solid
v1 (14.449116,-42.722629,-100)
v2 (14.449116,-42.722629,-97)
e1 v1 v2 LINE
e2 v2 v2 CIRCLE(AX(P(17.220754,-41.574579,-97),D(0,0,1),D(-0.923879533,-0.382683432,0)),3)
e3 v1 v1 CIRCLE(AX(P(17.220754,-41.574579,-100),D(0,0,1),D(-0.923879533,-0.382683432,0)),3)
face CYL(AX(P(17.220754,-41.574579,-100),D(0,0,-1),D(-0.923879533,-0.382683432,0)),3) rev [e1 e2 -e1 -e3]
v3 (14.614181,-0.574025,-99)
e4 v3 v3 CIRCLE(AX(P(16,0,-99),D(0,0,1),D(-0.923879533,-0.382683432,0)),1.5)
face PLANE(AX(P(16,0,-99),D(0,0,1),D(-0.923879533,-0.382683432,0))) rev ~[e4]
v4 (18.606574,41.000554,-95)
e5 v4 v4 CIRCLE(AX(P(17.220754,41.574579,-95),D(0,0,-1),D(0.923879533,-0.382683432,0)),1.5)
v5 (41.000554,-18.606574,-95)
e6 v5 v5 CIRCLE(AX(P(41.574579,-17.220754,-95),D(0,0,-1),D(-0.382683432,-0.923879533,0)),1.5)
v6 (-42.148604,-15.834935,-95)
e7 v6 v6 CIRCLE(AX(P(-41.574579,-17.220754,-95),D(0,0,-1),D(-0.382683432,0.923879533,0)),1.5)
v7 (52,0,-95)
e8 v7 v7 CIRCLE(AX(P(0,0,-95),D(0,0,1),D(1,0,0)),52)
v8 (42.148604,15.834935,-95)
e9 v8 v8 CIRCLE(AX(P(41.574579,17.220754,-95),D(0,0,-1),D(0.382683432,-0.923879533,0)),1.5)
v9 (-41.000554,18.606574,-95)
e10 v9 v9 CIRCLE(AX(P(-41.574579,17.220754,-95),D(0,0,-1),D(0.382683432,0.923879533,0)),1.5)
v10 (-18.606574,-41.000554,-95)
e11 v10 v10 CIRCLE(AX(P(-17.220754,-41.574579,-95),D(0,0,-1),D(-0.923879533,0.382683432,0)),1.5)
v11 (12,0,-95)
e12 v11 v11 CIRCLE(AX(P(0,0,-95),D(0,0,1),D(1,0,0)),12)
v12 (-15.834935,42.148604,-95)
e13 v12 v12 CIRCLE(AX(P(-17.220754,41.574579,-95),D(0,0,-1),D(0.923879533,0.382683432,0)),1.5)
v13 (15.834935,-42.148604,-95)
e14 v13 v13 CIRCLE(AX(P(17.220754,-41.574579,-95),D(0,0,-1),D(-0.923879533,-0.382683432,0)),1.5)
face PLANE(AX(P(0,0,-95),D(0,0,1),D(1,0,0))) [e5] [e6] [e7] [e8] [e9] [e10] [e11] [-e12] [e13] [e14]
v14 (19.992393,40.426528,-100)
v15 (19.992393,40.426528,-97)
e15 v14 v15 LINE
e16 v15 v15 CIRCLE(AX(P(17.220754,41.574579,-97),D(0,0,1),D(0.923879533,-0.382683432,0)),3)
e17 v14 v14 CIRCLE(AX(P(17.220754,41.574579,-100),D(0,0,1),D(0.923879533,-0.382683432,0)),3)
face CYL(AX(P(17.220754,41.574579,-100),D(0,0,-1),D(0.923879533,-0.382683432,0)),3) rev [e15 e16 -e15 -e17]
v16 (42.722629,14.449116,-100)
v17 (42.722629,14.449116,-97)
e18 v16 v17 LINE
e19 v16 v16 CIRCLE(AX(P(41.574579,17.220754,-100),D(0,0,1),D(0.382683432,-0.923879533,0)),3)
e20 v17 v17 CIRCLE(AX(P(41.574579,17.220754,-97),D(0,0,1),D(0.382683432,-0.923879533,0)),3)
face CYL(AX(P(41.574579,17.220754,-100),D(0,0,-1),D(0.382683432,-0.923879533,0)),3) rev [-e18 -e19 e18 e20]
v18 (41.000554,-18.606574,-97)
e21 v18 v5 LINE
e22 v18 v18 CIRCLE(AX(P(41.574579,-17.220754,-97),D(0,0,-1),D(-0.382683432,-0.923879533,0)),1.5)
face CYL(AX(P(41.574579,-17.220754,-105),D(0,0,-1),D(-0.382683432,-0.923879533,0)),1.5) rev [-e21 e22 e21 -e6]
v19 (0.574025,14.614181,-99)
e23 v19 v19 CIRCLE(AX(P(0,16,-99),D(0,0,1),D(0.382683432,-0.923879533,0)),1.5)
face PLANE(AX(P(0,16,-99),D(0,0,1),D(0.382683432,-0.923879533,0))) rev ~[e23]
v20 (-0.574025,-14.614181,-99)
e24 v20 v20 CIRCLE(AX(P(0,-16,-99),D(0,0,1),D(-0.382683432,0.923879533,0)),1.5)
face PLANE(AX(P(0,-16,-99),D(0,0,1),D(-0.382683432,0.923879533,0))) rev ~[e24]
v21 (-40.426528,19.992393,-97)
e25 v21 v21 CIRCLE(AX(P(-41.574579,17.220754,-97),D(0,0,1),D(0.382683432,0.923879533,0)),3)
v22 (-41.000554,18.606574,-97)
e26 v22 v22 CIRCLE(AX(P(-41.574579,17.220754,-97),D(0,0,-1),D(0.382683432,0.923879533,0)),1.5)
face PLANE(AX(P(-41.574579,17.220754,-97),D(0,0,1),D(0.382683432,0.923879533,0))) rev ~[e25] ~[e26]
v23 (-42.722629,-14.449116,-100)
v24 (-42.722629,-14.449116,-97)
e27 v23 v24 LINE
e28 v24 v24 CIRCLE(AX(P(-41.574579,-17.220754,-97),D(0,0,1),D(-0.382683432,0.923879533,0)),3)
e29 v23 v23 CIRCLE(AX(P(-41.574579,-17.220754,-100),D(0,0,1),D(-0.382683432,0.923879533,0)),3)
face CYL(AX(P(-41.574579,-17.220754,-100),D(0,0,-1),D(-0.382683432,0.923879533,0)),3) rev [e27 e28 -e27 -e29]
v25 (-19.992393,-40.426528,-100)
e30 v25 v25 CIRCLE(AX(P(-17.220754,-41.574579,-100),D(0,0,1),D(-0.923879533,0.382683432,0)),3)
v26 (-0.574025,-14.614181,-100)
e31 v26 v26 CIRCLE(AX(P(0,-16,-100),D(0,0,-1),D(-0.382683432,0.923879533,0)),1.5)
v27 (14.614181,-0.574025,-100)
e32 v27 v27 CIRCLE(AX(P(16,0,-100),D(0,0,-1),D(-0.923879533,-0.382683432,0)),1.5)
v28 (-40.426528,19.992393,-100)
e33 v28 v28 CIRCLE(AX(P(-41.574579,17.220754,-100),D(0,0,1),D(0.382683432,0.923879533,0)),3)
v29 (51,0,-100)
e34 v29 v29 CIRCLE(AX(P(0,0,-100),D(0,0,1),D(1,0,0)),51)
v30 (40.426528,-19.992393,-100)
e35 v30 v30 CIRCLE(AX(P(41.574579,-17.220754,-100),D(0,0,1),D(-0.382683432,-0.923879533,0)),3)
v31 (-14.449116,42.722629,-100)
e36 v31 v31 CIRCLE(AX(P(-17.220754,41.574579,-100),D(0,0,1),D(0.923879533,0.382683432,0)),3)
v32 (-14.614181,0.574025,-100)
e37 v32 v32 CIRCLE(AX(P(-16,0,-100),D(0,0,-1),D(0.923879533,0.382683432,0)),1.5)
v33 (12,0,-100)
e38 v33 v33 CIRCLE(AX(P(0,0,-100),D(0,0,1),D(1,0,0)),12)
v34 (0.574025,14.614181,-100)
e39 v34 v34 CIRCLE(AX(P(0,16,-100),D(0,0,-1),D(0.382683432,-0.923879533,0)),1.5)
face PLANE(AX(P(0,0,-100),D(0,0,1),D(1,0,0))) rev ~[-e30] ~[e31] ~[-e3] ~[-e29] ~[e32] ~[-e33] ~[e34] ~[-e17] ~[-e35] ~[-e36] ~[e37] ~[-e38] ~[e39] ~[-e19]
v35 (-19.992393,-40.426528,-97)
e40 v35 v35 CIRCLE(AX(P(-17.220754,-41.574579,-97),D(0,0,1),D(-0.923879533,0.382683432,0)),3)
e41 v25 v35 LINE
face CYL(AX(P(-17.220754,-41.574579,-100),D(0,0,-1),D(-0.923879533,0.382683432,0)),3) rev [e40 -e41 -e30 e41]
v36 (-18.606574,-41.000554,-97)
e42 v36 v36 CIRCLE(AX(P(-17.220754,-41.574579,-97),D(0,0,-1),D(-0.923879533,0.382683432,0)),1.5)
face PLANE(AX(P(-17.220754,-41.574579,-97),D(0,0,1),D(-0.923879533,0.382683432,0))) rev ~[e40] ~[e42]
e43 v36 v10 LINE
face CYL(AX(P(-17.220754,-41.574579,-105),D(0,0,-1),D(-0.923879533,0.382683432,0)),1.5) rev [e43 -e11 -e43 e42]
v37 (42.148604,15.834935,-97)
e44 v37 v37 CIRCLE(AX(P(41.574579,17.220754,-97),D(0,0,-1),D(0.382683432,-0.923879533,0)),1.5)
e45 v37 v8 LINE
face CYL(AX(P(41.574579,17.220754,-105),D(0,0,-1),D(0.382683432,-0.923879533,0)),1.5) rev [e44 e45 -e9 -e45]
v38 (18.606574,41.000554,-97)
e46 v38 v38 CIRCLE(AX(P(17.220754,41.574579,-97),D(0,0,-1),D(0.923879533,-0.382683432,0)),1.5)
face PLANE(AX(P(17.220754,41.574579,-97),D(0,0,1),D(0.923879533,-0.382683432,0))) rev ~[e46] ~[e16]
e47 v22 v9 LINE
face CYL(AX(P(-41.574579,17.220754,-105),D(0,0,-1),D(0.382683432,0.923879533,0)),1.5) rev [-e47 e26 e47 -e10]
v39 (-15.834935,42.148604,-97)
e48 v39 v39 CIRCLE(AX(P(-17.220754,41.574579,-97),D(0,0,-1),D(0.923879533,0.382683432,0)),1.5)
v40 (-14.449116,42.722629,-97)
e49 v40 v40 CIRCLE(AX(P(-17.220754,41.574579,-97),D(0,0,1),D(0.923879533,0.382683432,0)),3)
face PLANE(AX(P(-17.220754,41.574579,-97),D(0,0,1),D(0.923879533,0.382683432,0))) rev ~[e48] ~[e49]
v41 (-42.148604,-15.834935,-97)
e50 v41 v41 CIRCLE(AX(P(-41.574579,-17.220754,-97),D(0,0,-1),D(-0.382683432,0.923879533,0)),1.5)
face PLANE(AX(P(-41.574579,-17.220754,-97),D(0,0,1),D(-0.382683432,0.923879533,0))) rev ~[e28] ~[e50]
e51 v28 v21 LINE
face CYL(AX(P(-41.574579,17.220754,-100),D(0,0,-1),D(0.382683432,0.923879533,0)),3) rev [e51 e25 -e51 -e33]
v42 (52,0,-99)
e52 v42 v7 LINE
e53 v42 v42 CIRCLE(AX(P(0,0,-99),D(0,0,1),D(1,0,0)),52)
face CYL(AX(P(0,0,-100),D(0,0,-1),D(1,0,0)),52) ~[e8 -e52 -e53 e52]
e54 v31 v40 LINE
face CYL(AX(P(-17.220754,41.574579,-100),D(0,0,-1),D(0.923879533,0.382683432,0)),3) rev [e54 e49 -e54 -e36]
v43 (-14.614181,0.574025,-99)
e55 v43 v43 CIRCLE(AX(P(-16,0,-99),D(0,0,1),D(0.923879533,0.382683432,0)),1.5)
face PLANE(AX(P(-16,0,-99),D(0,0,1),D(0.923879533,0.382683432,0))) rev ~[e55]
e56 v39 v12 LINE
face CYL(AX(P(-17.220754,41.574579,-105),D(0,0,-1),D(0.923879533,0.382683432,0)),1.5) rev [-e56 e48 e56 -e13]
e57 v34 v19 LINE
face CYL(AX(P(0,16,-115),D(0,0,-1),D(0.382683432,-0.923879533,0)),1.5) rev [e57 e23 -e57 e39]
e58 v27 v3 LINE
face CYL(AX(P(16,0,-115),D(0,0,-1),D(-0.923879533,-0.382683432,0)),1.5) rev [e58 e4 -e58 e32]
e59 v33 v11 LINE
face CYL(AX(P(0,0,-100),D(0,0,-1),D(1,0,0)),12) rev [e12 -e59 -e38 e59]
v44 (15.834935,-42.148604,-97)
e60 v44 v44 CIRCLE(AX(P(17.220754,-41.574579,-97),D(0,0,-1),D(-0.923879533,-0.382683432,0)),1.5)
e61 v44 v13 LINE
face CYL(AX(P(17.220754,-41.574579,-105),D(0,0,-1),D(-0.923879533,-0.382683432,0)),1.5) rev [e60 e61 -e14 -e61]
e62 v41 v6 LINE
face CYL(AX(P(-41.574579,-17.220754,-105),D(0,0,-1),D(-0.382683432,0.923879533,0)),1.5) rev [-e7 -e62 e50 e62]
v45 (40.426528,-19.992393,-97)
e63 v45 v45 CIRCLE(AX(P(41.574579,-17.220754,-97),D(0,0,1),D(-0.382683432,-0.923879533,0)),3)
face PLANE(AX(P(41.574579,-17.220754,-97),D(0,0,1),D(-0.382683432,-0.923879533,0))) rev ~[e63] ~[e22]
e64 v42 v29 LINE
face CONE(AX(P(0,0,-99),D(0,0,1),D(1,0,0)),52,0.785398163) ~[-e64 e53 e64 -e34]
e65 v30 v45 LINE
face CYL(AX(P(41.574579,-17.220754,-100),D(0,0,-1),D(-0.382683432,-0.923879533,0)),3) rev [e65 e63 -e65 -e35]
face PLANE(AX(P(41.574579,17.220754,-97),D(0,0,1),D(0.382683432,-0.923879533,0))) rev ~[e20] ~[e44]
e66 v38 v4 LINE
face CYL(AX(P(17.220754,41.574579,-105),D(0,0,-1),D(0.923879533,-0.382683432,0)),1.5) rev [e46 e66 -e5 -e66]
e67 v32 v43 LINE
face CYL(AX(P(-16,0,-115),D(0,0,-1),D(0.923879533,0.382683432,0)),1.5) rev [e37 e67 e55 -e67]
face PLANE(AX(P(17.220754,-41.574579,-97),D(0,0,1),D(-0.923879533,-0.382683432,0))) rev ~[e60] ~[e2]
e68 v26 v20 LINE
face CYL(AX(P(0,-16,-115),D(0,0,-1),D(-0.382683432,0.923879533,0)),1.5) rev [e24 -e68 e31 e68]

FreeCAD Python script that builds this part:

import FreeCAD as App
import Part
import Sketcher
from FreeCAD import Vector
Q = App.Units.Quantity


def edges_at(feature, points):
    """Names of the edges that pass closest to the given points."""
    edges = feature.Shape.Edges
    near = lambda p: min(range(len(edges)), key=lambda i: edges[i].distToShape(Part.Vertex(*p))[0])
    return sorted({f"Edge{near(p) + 1}" for p in points})

doc = App.newDocument("Part")
body = doc.addObject("PartDesign::Body", "Body")

# Sketch on XY plane
sketch1 = doc.addObject("Sketcher::SketchObject", "Sketch")
body.addObject(sketch1)
sketch1.AttachmentSupport = (doc.XY_Plane, [""])
sketch1.MapMode = "FlatFace"
sketch1.addGeometry(Part.Circle(Vector(0, 0, 0), Vector(0, 0, 1), 3), False)
sketch1.addConstraint([
    Sketcher.Constraint("Coincident", 0, 3, -1, 1),
    Sketcher.Constraint("Diameter", 0, Q("6 mm")),
])
pad1 = doc.addObject("PartDesign::Pad", "Pad")
body.addObject(pad1)
pad1.Profile = sketch1
pad1.Length = 3
body2 = doc.addObject("PartDesign::Body", "Body001")
doc.recompute()

body.Placement = App.Placement(Vector(-31.819805, 31.819805, -18), App.Rotation(Vector(0, 0, 1), 45))
boolean = doc.addObject("PartDesign::Boolean", "Boolean")
body2.addObject(boolean)
boolean.Type = "Fuse"
boolean.addObjects([body])
body3 = doc.addObject("PartDesign::Body", "Body002")

# Sketch on XY plane
sketch2 = doc.addObject("Sketcher::SketchObject", "Sketch001")
body3.addObject(sketch2)
sketch2.AttachmentSupport = (doc.getObject("XY_Plane002"), [""])
sketch2.MapMode = "FlatFace"
sketch2.AttachmentOffset = App.Placement(Vector(0, 0, -18), App.Rotation())
sketch2.addGeometry(Part.Circle(Vector(-45, 0, 0), Vector(0, 0, 1), 3), False)
sketch2.addConstraint([
    Sketcher.Constraint("PointOnObject", 0, 3, -1),
    Sketcher.Constraint("Diameter", 0, Q("6 mm")),
    Sketcher.Constraint("DistanceX", 0, 3, -1, 1, Q("45 mm")),
])
pad2 = doc.addObject("PartDesign::Pad", "Pad001")
body3.addObject(pad2)
pad2.Profile = sketch2
pad2.Length = 3
body4 = doc.addObject("PartDesign::Body", "Body003")

# Sketch on XY plane
sketch3 = doc.addObject("Sketcher::SketchObject", "Sketch002")
body4.addObject(sketch3)
sketch3.AttachmentSupport = (doc.getObject("XY_Plane003"), [""])
sketch3.MapMode = "FlatFace"
sketch3.addGeometry(Part.Circle(Vector(0, 0, 0), Vector(0, 0, 1), 3), False)
sketch3.addConstraint([
    Sketcher.Constraint("Coincident", 0, 3, -1, 1),
    Sketcher.Constraint("Diameter", 0, Q("6 mm")),
])
pad3 = doc.addObject("PartDesign::Pad", "Pad002")
body4.addObject(pad3)
pad3.Profile = sketch3
pad3.Length = 3
body5 = doc.addObject("PartDesign::Body", "Body004")
doc.recompute()

body4.Placement = App.Placement(Vector(-31.819805, -31.819805, -18), App.Rotation(Vector(0, 0, 1), 135))
boolean2 = doc.addObject("PartDesign::Boolean", "Boolean001")
body5.addObject(boolean2)
boolean2.Type = "Fuse"
boolean2.addObjects([body4])
body6 = doc.addObject("PartDesign::Body", "Body005")

# Sketch on XY plane
sketch4 = doc.addObject("Sketcher::SketchObject", "Sketch003")
body6.addObject(sketch4)
sketch4.AttachmentSupport = (doc.getObject("XY_Plane005"), [""])
sketch4.MapMode = "FlatFace"
sketch4.AttachmentOffset = App.Placement(Vector(0, 0, -18), App.Rotation())
sketch4.addGeometry(Part.Circle(Vector(0, -45, 0), Vector(0, 0, 1), 3), False)
sketch4.addConstraint([
    Sketcher.Constraint("PointOnObject", 0, 3, -2),
    Sketcher.Constraint("Diameter", 0, Q("6 mm")),
    Sketcher.Constraint("DistanceY", 0, 3, -1, 1, Q("45 mm")),
])
pad4 = doc.addObject("PartDesign::Pad", "Pad003")
body6.addObject(pad4)
pad4.Profile = sketch4
pad4.Length = 3
body7 = doc.addObject("PartDesign::Body", "Body006")

# Sketch on XY plane
sketch5 = doc.addObject("Sketcher::SketchObject", "Sketch004")
body7.addObject(sketch5)
sketch5.AttachmentSupport = (doc.getObject("XY_Plane006"), [""])
sketch5.MapMode = "FlatFace"
sketch5.addGeometry(Part.Circle(Vector(0, 0, 0), Vector(0, 0, 1), 3), False)
sketch5.addConstraint([
    Sketcher.Constraint("Coincident", 0, 3, -1, 1),
    Sketcher.Constraint("Diameter", 0, Q("6 mm")),
])
pad5 = doc.addObject("PartDesign::Pad", "Pad004")
body7.addObject(pad5)
pad5.Profile = sketch5
pad5.Length = 3
body8 = doc.addObject("PartDesign::Body", "Body007")
doc.recompute()

body7.Placement = App.Placement(Vector(31.819805, -31.819805, -18), App.Rotation(Vector(0, 0, 1), 225))
boolean3 = doc.addObject("PartDesign::Boolean", "Boolean002")
body8.addObject(boolean3)
boolean3.Type = "Fuse"
boolean3.addObjects([body7])
body9 = doc.addObject("PartDesign::Body", "Body008")

# Sketch on XY plane
sketch6 = doc.addObject("Sketcher::SketchObject", "Sketch005")
body9.addObject(sketch6)
sketch6.AttachmentSupport = (doc.getObject("XY_Plane008"), [""])
sketch6.MapMode = "FlatFace"
sketch6.AttachmentOffset = App.Placement(Vector(0, 0, -18), App.Rotation())
sketch6.addGeometry(Part.Circle(Vector(45, 0, 0), Vector(0, 0, 1), 3), False)
sketch6.addConstraint([
    Sketcher.Constraint("PointOnObject", 0, 3, -1),
    Sketcher.Constraint("Diameter", 0, Q("6 mm")),
    Sketcher.Constraint("DistanceX", -1, 1, 0, 3, Q("45 mm")),
])
pad6 = doc.addObject("PartDesign::Pad", "Pad005")
body9.addObject(pad6)
pad6.Profile = sketch6
pad6.Length = 3
body10 = doc.addObject("PartDesign::Body", "Body009")

# Sketch on XY plane
sketch7 = doc.addObject("Sketcher::SketchObject", "Sketch006")
body10.addObject(sketch7)
sketch7.AttachmentSupport = (doc.getObject("XY_Plane009"), [""])
sketch7.MapMode = "FlatFace"
sketch7.addGeometry(Part.Circle(Vector(0, 0, 0), Vector(0, 0, 1), 3), False)
sketch7.addConstraint([
    Sketcher.Constraint("Coincident", 0, 3, -1, 1),
    Sketcher.Constraint("Diameter", 0, Q("6 mm")),
])
pad7 = doc.addObject("PartDesign::Pad", "Pad006")
body10.addObject(pad7)
pad7.Profile = sketch7
pad7.Length = 3
body11 = doc.addObject("PartDesign::Body", "Body010")
doc.recompute()

body10.Placement = App.Placement(Vector(31.819805, 31.819805, -18), App.Rotation(Vector(0, 0, -1), 45))
boolean4 = doc.addObject("PartDesign::Boolean", "Boolean003")
body11.addObject(boolean4)
boolean4.Type = "Fuse"
boolean4.addObjects([body10])
body12 = doc.addObject("PartDesign::Body", "Body011")
body12.AllowCompound = True

# Sketch on XY plane
sketch8 = doc.addObject("Sketcher::SketchObject", "Sketch007")
body12.addObject(sketch8)
sketch8.AttachmentSupport = (doc.getObject("XY_Plane011"), [""])
sketch8.MapMode = "FlatFace"
sketch8.AttachmentOffset = App.Placement(Vector(0, 0, -18), App.Rotation())
sketch8.addGeometry(Part.Circle(Vector(0, 45, 0), Vector(0, 0, 1), 3), False)
sketch8.addConstraint([
    Sketcher.Constraint("PointOnObject", 0, 3, -2),
    Sketcher.Constraint("Diameter", 0, Q("6 mm")),
    Sketcher.Constraint("DistanceY", -1, 1, 0, 3, Q("45 mm")),
])
pad8 = doc.addObject("PartDesign::Pad", "Pad007")
body12.addObject(pad8)
pad8.Profile = sketch8
pad8.Length = 3
doc.recompute()

boolean5 = doc.addObject("PartDesign::Boolean", "Boolean004")
body12.addObject(boolean5)
boolean5.Type = "Fuse"
boolean5.addObjects([body2])
doc.recompute()

boolean6 = doc.addObject("PartDesign::Boolean", "Boolean005")
body12.addObject(boolean6)
boolean6.Type = "Fuse"
boolean6.addObjects([body3])
doc.recompute()

boolean7 = doc.addObject("PartDesign::Boolean", "Boolean006")
body12.addObject(boolean7)
boolean7.Type = "Fuse"
boolean7.addObjects([body5])
doc.recompute()

boolean8 = doc.addObject("PartDesign::Boolean", "Boolean007")
body12.addObject(boolean8)
boolean8.Type = "Fuse"
boolean8.addObjects([body6])
doc.recompute()

boolean9 = doc.addObject("PartDesign::Boolean", "Boolean008")
body12.addObject(boolean9)
boolean9.Type = "Fuse"
boolean9.addObjects([body8])
doc.recompute()

boolean10 = doc.addObject("PartDesign::Boolean", "Boolean009")
body12.addObject(boolean10)
boolean10.Type = "Fuse"
boolean10.addObjects([body9])
doc.recompute()

boolean11 = doc.addObject("PartDesign::Boolean", "Boolean010")
body12.addObject(boolean11)
boolean11.Type = "Fuse"
boolean11.addObjects([body11])
body13 = doc.addObject("PartDesign::Body", "Body012")
body13.AllowCompound = True
doc.recompute()

body12.Placement = App.Placement(Vector(0, 0, -82), App.Rotation(Vector(0, 0, 1), 22.5))
boolean12 = doc.addObject("PartDesign::Boolean", "Boolean011")
body13.addObject(boolean12)
boolean12.Type = "Fuse"
boolean12.addObjects([body12])
body14 = doc.addObject("PartDesign::Body", "Body013")

# Sketch on XY plane
sketch9 = doc.addObject("Sketcher::SketchObject", "Sketch008")
body14.addObject(sketch9)
sketch9.AttachmentSupport = (doc.getObject("XY_Plane013"), [""])
sketch9.MapMode = "FlatFace"
sketch9.addGeometry(Part.Circle(Vector(0, 0, 0), Vector(0, 0, 1), 1.5), False)
sketch9.addConstraint([
    Sketcher.Constraint("Coincident", 0, 3, -1, 1),
    Sketcher.Constraint("Diameter", 0, Q("3 mm")),
])
pad9 = doc.addObject("PartDesign::Pad", "Pad008")
body14.addObject(pad9)
pad9.Profile = sketch9
pad9.Length = 20
body15 = doc.addObject("PartDesign::Body", "Body014")
doc.recompute()

body14.Placement = App.Placement(Vector(-31.819805, 31.819805, -18), App.Rotation(Vector(0, 0, 1), 45))
boolean13 = doc.addObject("PartDesign::Boolean", "Boolean012")
body15.addObject(boolean13)
boolean13.Type = "Fuse"
boolean13.addObjects([body14])
body16 = doc.addObject("PartDesign::Body", "Body015")

# Sketch on XY plane
sketch10 = doc.addObject("Sketcher::SketchObject", "Sketch009")
body16.addObject(sketch10)
sketch10.AttachmentSupport = (doc.getObject("XY_Plane015"), [""])
sketch10.MapMode = "FlatFace"
sketch10.AttachmentOffset = App.Placement(Vector(0, 0, -18), App.Rotation())
sketch10.addGeometry(Part.Circle(Vector(-45, 0, 0), Vector(0, 0, 1), 1.5), False)
sketch10.addConstraint([
    Sketcher.Constraint("PointOnObject", 0, 3, -1),
    Sketcher.Constraint("Diameter", 0, Q("3 mm")),
    Sketcher.Constraint("DistanceX", 0, 3, -1, 1, Q("45 mm")),
])
pad10 = doc.addObject("PartDesign::Pad", "Pad009")
body16.addObject(pad10)
pad10.Profile = sketch10
pad10.Length = 20
body17 = doc.addObject("PartDesign::Body", "Body016")

# Sketch on XY plane
sketch11 = doc.addObject("Sketcher::SketchObject", "Sketch010")
body17.addObject(sketch11)
sketch11.AttachmentSupport = (doc.getObject("XY_Plane016"), [""])
sketch11.MapMode = "FlatFace"
sketch11.addGeometry(Part.Circle(Vector(0, 0, 0), Vector(0, 0, 1), 1.5), False)
sketch11.addConstraint([
    Sketcher.Constraint("Coincident", 0, 3, -1, 1),
    Sketcher.Constraint("Diameter", 0, Q("3 mm")),
])
pad11 = doc.addObject("PartDesign::Pad", "Pad010")
body17.addObject(pad11)
pad11.Profile = sketch11
pad11.Length = 20
body18 = doc.addObject("PartDesign::Body", "Body017")
doc.recompute()

body17.Placement = App.Placement(Vector(-31.819805, -31.819805, -18), App.Rotation(Vector(0, 0, 1), 135))
boolean14 = doc.addObject("PartDesign::Boolean", "Boolean013")
body18.addObject(boolean14)
boolean14.Type = "Fuse"
boolean14.addObjects([body17])
body19 = doc.addObject("PartDesign::Body", "Body018")

# Sketch on XY plane
sketch12 = doc.addObject("Sketcher::SketchObject", "Sketch011")
body19.addObject(sketch12)
sketch12.AttachmentSupport = (doc.getObject("XY_Plane018"), [""])
sketch12.MapMode = "FlatFace"
sketch12.AttachmentOffset = App.Placement(Vector(0, 0, -18), App.Rotation())
sketch12.addGeometry(Part.Circle(Vector(0, -45, 0), Vector(0, 0, 1), 1.5), False)
sketch12.addConstraint([
    Sketcher.Constraint("PointOnObject", 0, 3, -2),
    Sketcher.Constraint("Diameter", 0, Q("3 mm")),
    Sketcher.Constraint("DistanceY", 0, 3, -1, 1, Q("45 mm")),
])
pad12 = doc.addObject("PartDesign::Pad", "Pad011")
body19.addObject(pad12)
pad12.Profile = sketch12
pad12.Length = 20
body20 = doc.addObject("PartDesign::Body", "Body019")

# Sketch on XY plane
sketch13 = doc.addObject("Sketcher::SketchObject", "Sketch012")
body20.addObject(sketch13)
sketch13.AttachmentSupport = (doc.getObject("XY_Plane019"), [""])
sketch13.MapMode = "FlatFace"
sketch13.addGeometry(Part.Circle(Vector(0, 0, 0), Vector(0, 0, 1), 1.5), False)
sketch13.addConstraint([
    Sketcher.Constraint("Coincident", 0, 3, -1, 1),
    Sketcher.Constraint("Diameter", 0, Q("3 mm")),
])
pad13 = doc.addObject("PartDesign::Pad", "Pad012")
body20.addObject(pad13)
pad13.Profile = sketch13
pad13.Length = 20
body21 = doc.addObject("PartDesign::Body", "Body020")
doc.recompute()

body20.Placement = App.Placement(Vector(31.819805, -31.819805, -18), App.Rotation(Vector(0, 0, 1), 225))
boolean15 = doc.addObject("PartDesign::Boolean", "Boolean014")
body21.addObject(boolean15)
boolean15.Type = "Fuse"
boolean15.addObjects([body20])
body22 = doc.addObject("PartDesign::Body", "Body021")

# Sketch on XY plane
sketch14 = doc.addObject("Sketcher::SketchObject", "Sketch013")
body22.addObject(sketch14)
sketch14.AttachmentSupport = (doc.getObject("XY_Plane021"), [""])
sketch14.MapMode = "FlatFace"
sketch14.AttachmentOffset = App.Placement(Vector(0, 0, -18), App.Rotation())
sketch14.addGeometry(Part.Circle(Vector(45, 0, 0), Vector(0, 0, 1), 1.5), False)
sketch14.addConstraint([
    Sketcher.Constraint("PointOnObject", 0, 3, -1),
    Sketcher.Constraint("Diameter", 0, Q("3 mm")),
    Sketcher.Constraint("DistanceX", -1, 1, 0, 3, Q("45 mm")),
])
pad14 = doc.addObject("PartDesign::Pad", "Pad013")
body22.addObject(pad14)
pad14.Profile = sketch14
pad14.Length = 20
body23 = doc.addObject("PartDesign::Body", "Body022")

# Sketch on XY plane
sketch15 = doc.addObject("Sketcher::SketchObject", "Sketch014")
body23.addObject(sketch15)
sketch15.AttachmentSupport = (doc.getObject("XY_Plane022"), [""])
sketch15.MapMode = "FlatFace"
sketch15.addGeometry(Part.Circle(Vector(0, 0, 0), Vector(0, 0, 1), 1.5), False)
sketch15.addConstraint([
    Sketcher.Constraint("Coincident", 0, 3, -1, 1),
    Sketcher.Constraint("Diameter", 0, Q("3 mm")),
])
pad15 = doc.addObject("PartDesign::Pad", "Pad014")
body23.addObject(pad15)
pad15.Profile = sketch15
pad15.Length = 20
body24 = doc.addObject("PartDesign::Body", "Body023")
doc.recompute()

body23.Placement = App.Placement(Vector(31.819805, 31.819805, -18), App.Rotation(Vector(0, 0, -1), 45))
boolean16 = doc.addObject("PartDesign::Boolean", "Boolean015")
body24.addObject(boolean16)
boolean16.Type = "Fuse"
boolean16.addObjects([body23])
body25 = doc.addObject("PartDesign::Body", "Body024")
body25.AllowCompound = True

# Sketch on XY plane
sketch16 = doc.addObject("Sketcher::SketchObject", "Sketch015")
body25.addObject(sketch16)
sketch16.AttachmentSupport = (doc.getObject("XY_Plane024"), [""])
sketch16.MapMode = "FlatFace"
sketch16.AttachmentOffset = App.Placement(Vector(0, 0, -18), App.Rotation())
sketch16.addGeometry(Part.Circle(Vector(0, 45, 0), Vector(0, 0, 1), 1.5), False)
sketch16.addConstraint([
    Sketcher.Constraint("PointOnObject", 0, 3, -2),
    Sketcher.Constraint("Diameter", 0, Q("3 mm")),
    Sketcher.Constraint("DistanceY", -1, 1, 0, 3, Q("45 mm")),
])
pad16 = doc.addObject("PartDesign::Pad", "Pad015")
body25.addObject(pad16)
pad16.Profile = sketch16
pad16.Length = 20
doc.recompute()

boolean17 = doc.addObject("PartDesign::Boolean", "Boolean016")
body25.addObject(boolean17)
boolean17.Type = "Fuse"
boolean17.addObjects([body15])
doc.recompute()

boolean18 = doc.addObject("PartDesign::Boolean", "Boolean017")
body25.addObject(boolean18)
boolean18.Type = "Fuse"
boolean18.addObjects([body16])
doc.recompute()

boolean19 = doc.addObject("PartDesign::Boolean", "Boolean018")
body25.addObject(boolean19)
boolean19.Type = "Fuse"
boolean19.addObjects([body18])
doc.recompute()

boolean20 = doc.addObject("PartDesign::Boolean", "Boolean019")
body25.addObject(boolean20)
boolean20.Type = "Fuse"
boolean20.addObjects([body19])
doc.recompute()

boolean21 = doc.addObject("PartDesign::Boolean", "Boolean020")
body25.addObject(boolean21)
boolean21.Type = "Fuse"
boolean21.addObjects([body21])
doc.recompute()

boolean22 = doc.addObject("PartDesign::Boolean", "Boolean021")
body25.addObject(boolean22)
boolean22.Type = "Fuse"
boolean22.addObjects([body22])
doc.recompute()

boolean23 = doc.addObject("PartDesign::Boolean", "Boolean022")
body25.addObject(boolean23)
boolean23.Type = "Fuse"
boolean23.addObjects([body24])
body26 = doc.addObject("PartDesign::Body", "Body025")
body26.AllowCompound = True
doc.recompute()

body25.Placement = App.Placement(Vector(0, 0, -87), App.Rotation(Vector(0, 0, 1), 22.5))
boolean24 = doc.addObject("PartDesign::Boolean", "Boolean023")
body26.addObject(boolean24)
boolean24.Type = "Fuse"
boolean24.addObjects([body25])
body27 = doc.addObject("PartDesign::Body", "Body026")

# Sketch on XY plane
sketch17 = doc.addObject("Sketcher::SketchObject", "Sketch016")
body27.addObject(sketch17)
sketch17.AttachmentSupport = (doc.getObject("XY_Plane026"), [""])
sketch17.MapMode = "FlatFace"
sketch17.addGeometry(Part.Circle(Vector(0, 0, 0), Vector(0, 0, 1), 1.5), False)
sketch17.addConstraint([
    Sketcher.Constraint("Coincident", 0, 3, -1, 1),
    Sketcher.Constraint("Diameter", 0, Q("3 mm")),
])
pad17 = doc.addObject("PartDesign::Pad", "Pad016")
body27.addObject(pad17)
pad17.Profile = sketch17
pad17.Length = 16
body28 = doc.addObject("PartDesign::Body", "Body027")
doc.recompute()

body27.Placement = App.Placement(Vector(0, 16, 2), App.Rotation(Vector(0, 0, -1), 67.5))
boolean25 = doc.addObject("PartDesign::Boolean", "Boolean024")
body28.addObject(boolean25)
boolean25.Type = "Fuse"
boolean25.addObjects([body27])
body29 = doc.addObject("PartDesign::Body", "Body028")

# Sketch on XY plane
sketch18 = doc.addObject("Sketcher::SketchObject", "Sketch017")
body29.addObject(sketch18)
sketch18.AttachmentSupport = (doc.getObject("XY_Plane028"), [""])
sketch18.MapMode = "FlatFace"
sketch18.addGeometry(Part.Circle(Vector(0, 0, 0), Vector(0, 0, 1), 1.5), False)
sketch18.addConstraint([
    Sketcher.Constraint("Coincident", 0, 3, -1, 1),
    Sketcher.Constraint("Diameter", 0, Q("3 mm")),
])
pad18 = doc.addObject("PartDesign::Pad", "Pad017")
body29.addObject(pad18)
pad18.Profile = sketch18
pad18.Length = 16
body30 = doc.addObject("PartDesign::Body", "Body029")
doc.recompute()

body29.Placement = App.Placement(Vector(-16, 0, 2), App.Rotation(Vector(0, 0, 1), 22.5))
boolean26 = doc.addObject("PartDesign::Boolean", "Boolean025")
body30.addObject(boolean26)
boolean26.Type = "Fuse"
boolean26.addObjects([body29])
body31 = doc.addObject("PartDesign::Body", "Body030")

# Sketch on XY plane
sketch19 = doc.addObject("Sketcher::SketchObject", "Sketch018")
body31.addObject(sketch19)
sketch19.AttachmentSupport = (doc.getObject("XY_Plane030"), [""])
sketch19.MapMode = "FlatFace"
sketch19.addGeometry(Part.Circle(Vector(0, 0, 0), Vector(0, 0, 1), 1.5), False)
sketch19.addConstraint([
    Sketcher.Constraint("Coincident", 0, 3, -1, 1),
    Sketcher.Constraint("Diameter", 0, Q("3 mm")),
])
pad19 = doc.addObject("PartDesign::Pad", "Pad018")
body31.addObject(pad19)
pad19.Profile = sketch19
pad19.Length = 16
body32 = doc.addObject("PartDesign::Body", "Body031")
doc.recompute()

body31.Placement = App.Placement(Vector(0, -16, 2), App.Rotation(Vector(0, 0, 1), 112.5))
boolean27 = doc.addObject("PartDesign::Boolean", "Boolean026")
body32.addObject(boolean27)
boolean27.Type = "Fuse"
boolean27.addObjects([body31])
body33 = doc.addObject("PartDesign::Body", "Body032")

# Sketch on XY plane
sketch20 = doc.addObject("Sketcher::SketchObject", "Sketch019")
body33.addObject(sketch20)
sketch20.AttachmentSupport = (doc.getObject("XY_Plane032"), [""])
sketch20.MapMode = "FlatFace"
sketch20.addGeometry(Part.Circle(Vector(0, 0, 0), Vector(0, 0, 1), 1.5), False)
sketch20.addConstraint([
    Sketcher.Constraint("Coincident", 0, 3, -1, 1),
    Sketcher.Constraint("Diameter", 0, Q("3 mm")),
])
pad20 = doc.addObject("PartDesign::Pad", "Pad019")
body33.addObject(pad20)
pad20.Profile = sketch20
pad20.Length = 16
body34 = doc.addObject("PartDesign::Body", "Body033")
body34.AllowCompound = True
doc.recompute()

body33.Placement = App.Placement(Vector(16, 0, 2), App.Rotation(Vector(0, 0, 1), 202.5))
boolean28 = doc.addObject("PartDesign::Boolean", "Boolean027")
body34.addObject(boolean28)
boolean28.Type = "Fuse"
boolean28.addObjects([body33])
doc.recompute()

boolean29 = doc.addObject("PartDesign::Boolean", "Boolean028")
body34.addObject(boolean29)
boolean29.Type = "Fuse"
boolean29.addObjects([body28])
doc.recompute()

boolean30 = doc.addObject("PartDesign::Boolean", "Boolean029")
body34.addObject(boolean30)
boolean30.Type = "Fuse"
boolean30.addObjects([body30])
doc.recompute()

boolean31 = doc.addObject("PartDesign::Boolean", "Boolean030")
body34.addObject(boolean31)
boolean31.Type = "Fuse"
boolean31.addObjects([body32])
body35 = doc.addObject("PartDesign::Body", "Body034")
body35.AllowCompound = True
doc.recompute()

body34.Placement = App.Placement(Vector(0, 0, -117), App.Rotation(Vector(0, 0, 1), 0))
boolean32 = doc.addObject("PartDesign::Boolean", "Boolean031")
body35.addObject(boolean32)
boolean32.Type = "Fuse"
boolean32.addObjects([body34])
body36 = doc.addObject("PartDesign::Body", "Body035")

# Sketch on XY plane
sketch21 = doc.addObject("Sketcher::SketchObject", "Sketch020")
body36.addObject(sketch21)
sketch21.AttachmentSupport = (doc.getObject("XY_Plane035"), [""])
sketch21.MapMode = "FlatFace"
sketch21.AttachmentOffset = App.Placement(Vector(0, 0, -100), App.Rotation())
sketch21.addGeometry([
    Part.Circle(Vector(0, 0, 0), Vector(0, 0, 1), 52),
    Part.Circle(Vector(0, 0, 0), Vector(0, 0, 1), 12),
], False)
sketch21.addConstraint([
    Sketcher.Constraint("Coincident", 0, 3, -1, 1),
    Sketcher.Constraint("Coincident", 1, 3, -1, 1),
    Sketcher.Constraint("Diameter", 0, Q("104 mm")),
    Sketcher.Constraint("Diameter", 1, Q("24 mm")),
])
pad21 = doc.addObject("PartDesign::Pad", "Pad020")
body36.addObject(pad21)
pad21.Profile = sketch21
pad21.Length = 5
doc.recompute()

boolean33 = doc.addObject("PartDesign::Boolean", "Boolean032")
body36.addObject(boolean33)
boolean33.Type = "Cut"
boolean33.addObjects([body35])
doc.recompute()

boolean34 = doc.addObject("PartDesign::Boolean", "Boolean033")
body36.addObject(boolean34)
boolean34.Type = "Cut"
boolean34.addObjects([body26])
doc.recompute()

boolean35 = doc.addObject("PartDesign::Boolean", "Boolean034")
body36.addObject(boolean35)
boolean35.Type = "Cut"
boolean35.addObjects([body13])
doc.recompute()

chamfer = doc.addObject("PartDesign::Chamfer", "Chamfer")
body36.addObject(chamfer)
chamfer.Base = (boolean35, edges_at(boolean35, [(-52, 0, -100)]))
chamfer.Size = 1

doc.recompute()
